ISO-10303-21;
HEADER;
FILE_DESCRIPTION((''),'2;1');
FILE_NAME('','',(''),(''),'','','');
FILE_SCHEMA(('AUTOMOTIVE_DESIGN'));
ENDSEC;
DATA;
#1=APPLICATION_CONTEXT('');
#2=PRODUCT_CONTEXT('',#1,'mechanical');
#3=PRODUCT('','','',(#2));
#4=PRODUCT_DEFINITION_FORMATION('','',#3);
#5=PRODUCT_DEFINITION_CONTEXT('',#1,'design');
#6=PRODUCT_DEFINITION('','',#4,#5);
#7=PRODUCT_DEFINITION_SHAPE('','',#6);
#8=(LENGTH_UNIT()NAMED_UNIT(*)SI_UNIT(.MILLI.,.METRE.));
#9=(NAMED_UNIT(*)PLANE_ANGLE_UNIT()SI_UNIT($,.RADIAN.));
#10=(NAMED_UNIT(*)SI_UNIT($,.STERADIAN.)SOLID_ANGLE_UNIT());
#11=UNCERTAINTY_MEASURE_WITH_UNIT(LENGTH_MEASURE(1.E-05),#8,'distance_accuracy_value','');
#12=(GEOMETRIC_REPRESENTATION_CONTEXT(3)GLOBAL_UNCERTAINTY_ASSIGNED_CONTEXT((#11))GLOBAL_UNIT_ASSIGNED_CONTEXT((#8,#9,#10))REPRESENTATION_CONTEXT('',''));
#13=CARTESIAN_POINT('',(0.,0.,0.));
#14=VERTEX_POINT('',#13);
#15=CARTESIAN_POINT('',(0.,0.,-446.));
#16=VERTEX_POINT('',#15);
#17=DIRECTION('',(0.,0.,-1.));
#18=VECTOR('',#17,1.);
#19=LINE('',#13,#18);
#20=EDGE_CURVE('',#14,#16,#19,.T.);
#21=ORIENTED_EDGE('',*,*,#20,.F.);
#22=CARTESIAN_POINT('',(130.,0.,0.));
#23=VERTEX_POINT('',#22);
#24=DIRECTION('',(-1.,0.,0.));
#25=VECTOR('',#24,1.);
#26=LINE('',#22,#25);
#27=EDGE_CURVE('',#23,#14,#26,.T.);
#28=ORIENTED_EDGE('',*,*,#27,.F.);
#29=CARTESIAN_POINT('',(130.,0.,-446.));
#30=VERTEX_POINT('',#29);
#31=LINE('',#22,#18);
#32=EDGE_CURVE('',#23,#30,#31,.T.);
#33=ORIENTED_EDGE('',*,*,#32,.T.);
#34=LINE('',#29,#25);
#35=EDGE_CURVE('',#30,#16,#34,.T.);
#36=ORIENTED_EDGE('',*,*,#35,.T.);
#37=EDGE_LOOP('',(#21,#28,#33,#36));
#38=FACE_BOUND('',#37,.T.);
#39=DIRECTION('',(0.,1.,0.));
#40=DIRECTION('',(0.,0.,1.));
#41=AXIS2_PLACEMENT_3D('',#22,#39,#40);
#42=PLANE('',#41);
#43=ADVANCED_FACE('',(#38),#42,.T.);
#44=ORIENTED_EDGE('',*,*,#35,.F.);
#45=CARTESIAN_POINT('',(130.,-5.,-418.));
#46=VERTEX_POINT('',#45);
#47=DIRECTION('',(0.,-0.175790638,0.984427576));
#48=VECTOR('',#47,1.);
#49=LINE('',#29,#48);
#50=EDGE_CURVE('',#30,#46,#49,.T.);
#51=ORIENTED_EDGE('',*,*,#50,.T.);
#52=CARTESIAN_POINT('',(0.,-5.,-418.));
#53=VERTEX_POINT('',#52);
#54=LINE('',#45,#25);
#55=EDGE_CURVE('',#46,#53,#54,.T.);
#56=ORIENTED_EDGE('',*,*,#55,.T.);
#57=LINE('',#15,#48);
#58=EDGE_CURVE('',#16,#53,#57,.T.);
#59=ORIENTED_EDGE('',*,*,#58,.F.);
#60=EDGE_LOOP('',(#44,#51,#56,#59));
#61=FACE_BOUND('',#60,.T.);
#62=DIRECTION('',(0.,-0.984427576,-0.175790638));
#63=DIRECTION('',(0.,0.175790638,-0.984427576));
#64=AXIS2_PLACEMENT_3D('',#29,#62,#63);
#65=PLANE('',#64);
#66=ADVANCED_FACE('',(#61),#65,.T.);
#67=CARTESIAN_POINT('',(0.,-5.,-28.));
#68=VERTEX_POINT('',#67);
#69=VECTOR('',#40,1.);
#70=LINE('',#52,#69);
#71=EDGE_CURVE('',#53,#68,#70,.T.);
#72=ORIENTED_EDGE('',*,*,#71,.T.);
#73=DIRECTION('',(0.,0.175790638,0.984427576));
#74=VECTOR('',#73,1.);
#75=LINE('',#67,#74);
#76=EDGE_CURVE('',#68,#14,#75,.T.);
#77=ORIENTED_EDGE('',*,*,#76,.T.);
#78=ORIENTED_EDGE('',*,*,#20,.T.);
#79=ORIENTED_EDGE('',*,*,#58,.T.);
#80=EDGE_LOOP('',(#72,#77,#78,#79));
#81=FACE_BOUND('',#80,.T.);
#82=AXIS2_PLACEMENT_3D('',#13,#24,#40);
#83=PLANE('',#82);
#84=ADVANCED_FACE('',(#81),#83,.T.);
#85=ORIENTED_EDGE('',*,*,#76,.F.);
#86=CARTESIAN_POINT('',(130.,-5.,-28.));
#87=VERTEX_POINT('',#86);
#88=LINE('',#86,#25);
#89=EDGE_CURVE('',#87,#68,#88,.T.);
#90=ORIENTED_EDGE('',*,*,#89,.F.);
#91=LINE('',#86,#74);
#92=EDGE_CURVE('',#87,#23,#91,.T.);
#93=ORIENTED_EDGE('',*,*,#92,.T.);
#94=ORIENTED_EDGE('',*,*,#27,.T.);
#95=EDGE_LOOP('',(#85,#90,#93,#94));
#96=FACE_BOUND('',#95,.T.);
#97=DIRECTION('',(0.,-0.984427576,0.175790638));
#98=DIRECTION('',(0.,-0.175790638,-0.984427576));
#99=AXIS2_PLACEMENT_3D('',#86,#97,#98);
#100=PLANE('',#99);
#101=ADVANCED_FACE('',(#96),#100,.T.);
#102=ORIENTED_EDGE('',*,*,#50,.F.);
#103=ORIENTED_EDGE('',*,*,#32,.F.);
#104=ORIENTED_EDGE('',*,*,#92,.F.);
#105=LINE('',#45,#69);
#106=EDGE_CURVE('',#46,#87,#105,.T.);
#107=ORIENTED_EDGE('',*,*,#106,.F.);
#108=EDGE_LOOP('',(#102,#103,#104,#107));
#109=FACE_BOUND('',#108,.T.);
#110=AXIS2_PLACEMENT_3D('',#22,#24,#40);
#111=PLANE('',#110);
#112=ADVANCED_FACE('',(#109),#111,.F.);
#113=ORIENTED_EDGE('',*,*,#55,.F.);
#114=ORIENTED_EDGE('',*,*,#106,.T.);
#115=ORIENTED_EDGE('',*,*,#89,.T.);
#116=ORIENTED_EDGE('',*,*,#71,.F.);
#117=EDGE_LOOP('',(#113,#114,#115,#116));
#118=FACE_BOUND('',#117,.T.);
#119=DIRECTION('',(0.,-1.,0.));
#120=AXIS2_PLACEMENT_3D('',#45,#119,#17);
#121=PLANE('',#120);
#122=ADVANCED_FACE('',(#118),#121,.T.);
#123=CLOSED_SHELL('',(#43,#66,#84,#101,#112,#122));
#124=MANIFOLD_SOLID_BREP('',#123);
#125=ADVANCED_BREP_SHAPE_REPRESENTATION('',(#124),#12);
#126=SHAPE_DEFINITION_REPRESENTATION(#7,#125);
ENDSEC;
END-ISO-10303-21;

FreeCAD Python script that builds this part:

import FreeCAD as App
import Part
import Sketcher

V = App.Vector
Q = App.Units.Quantity


def add_polygon(sketch, points):
    """Adds a closed chain of lines whose ends are joined by coincident constraints."""
    first, n = sketch.GeometryCount, len(points)
    for a, b in zip(points, points[1:] + points[:1]):
        sketch.addGeometry(Part.LineSegment(App.Vector(*a, 0), App.Vector(*b, 0)), False)
    for i in range(n):
        sketch.addConstraint(Sketcher.Constraint("Coincident", first + i, 2, first + (i + 1) % n, 1))

doc = App.newDocument("Part")
params = doc.addObject("Spreadsheet::Sheet", "Params")
for row, (alias, value) in enumerate([
    ("sketch1_height", "446 mm"),
    ("sketch1_height2", "390 mm"),
    ("pad1_length", "130 mm"),
], start=1):
    params.set(f"A{row}", alias)
    params.set(f"B{row}", "=" + value)
    params.setAlias(f"B{row}", alias)

body = doc.addObject("PartDesign::Body", "Body")

sketch1 = body.newObject("Sketcher::SketchObject", "Sketch")
sketch1.AttachmentSupport = (doc.getObject("YZ_Plane"), [""])
sketch1.MapMode = "FlatFace"
add_polygon(sketch1, [(0, -446), (0, 0), (-5, -28), (-5, -418)])
sketch1.addConstraint(Sketcher.Constraint("Vertical", 0))
sketch1.addConstraint(Sketcher.Constraint("Vertical", 2))
sketch1.addConstraint(Sketcher.Constraint("Coincident", 0, 2, -1, 1))
sketch1.addConstraint(Sketcher.Constraint("Equal", 1, 3))
sketch1.addConstraint(Sketcher.Constraint("DistanceY", 0, 1, 0, 2, Q("446 mm")))
sketch1.addConstraint(Sketcher.Constraint("DistanceY", 2, 2, 2, 1, Q("390 mm")))
sketch1.addConstraint(Sketcher.Constraint("DistanceX", 1, 2, -1, 1, Q("5 mm")))
sketch1.setExpression("Constraints[8]", "Params.sketch1_height")
sketch1.setExpression("Constraints[9]", "Params.sketch1_height2")
pad1 = body.newObject("PartDesign::Pad", "Pad")
pad1.Profile = sketch1
pad1.setExpression("Length", "Params.pad1_length")

doc.recompute()
